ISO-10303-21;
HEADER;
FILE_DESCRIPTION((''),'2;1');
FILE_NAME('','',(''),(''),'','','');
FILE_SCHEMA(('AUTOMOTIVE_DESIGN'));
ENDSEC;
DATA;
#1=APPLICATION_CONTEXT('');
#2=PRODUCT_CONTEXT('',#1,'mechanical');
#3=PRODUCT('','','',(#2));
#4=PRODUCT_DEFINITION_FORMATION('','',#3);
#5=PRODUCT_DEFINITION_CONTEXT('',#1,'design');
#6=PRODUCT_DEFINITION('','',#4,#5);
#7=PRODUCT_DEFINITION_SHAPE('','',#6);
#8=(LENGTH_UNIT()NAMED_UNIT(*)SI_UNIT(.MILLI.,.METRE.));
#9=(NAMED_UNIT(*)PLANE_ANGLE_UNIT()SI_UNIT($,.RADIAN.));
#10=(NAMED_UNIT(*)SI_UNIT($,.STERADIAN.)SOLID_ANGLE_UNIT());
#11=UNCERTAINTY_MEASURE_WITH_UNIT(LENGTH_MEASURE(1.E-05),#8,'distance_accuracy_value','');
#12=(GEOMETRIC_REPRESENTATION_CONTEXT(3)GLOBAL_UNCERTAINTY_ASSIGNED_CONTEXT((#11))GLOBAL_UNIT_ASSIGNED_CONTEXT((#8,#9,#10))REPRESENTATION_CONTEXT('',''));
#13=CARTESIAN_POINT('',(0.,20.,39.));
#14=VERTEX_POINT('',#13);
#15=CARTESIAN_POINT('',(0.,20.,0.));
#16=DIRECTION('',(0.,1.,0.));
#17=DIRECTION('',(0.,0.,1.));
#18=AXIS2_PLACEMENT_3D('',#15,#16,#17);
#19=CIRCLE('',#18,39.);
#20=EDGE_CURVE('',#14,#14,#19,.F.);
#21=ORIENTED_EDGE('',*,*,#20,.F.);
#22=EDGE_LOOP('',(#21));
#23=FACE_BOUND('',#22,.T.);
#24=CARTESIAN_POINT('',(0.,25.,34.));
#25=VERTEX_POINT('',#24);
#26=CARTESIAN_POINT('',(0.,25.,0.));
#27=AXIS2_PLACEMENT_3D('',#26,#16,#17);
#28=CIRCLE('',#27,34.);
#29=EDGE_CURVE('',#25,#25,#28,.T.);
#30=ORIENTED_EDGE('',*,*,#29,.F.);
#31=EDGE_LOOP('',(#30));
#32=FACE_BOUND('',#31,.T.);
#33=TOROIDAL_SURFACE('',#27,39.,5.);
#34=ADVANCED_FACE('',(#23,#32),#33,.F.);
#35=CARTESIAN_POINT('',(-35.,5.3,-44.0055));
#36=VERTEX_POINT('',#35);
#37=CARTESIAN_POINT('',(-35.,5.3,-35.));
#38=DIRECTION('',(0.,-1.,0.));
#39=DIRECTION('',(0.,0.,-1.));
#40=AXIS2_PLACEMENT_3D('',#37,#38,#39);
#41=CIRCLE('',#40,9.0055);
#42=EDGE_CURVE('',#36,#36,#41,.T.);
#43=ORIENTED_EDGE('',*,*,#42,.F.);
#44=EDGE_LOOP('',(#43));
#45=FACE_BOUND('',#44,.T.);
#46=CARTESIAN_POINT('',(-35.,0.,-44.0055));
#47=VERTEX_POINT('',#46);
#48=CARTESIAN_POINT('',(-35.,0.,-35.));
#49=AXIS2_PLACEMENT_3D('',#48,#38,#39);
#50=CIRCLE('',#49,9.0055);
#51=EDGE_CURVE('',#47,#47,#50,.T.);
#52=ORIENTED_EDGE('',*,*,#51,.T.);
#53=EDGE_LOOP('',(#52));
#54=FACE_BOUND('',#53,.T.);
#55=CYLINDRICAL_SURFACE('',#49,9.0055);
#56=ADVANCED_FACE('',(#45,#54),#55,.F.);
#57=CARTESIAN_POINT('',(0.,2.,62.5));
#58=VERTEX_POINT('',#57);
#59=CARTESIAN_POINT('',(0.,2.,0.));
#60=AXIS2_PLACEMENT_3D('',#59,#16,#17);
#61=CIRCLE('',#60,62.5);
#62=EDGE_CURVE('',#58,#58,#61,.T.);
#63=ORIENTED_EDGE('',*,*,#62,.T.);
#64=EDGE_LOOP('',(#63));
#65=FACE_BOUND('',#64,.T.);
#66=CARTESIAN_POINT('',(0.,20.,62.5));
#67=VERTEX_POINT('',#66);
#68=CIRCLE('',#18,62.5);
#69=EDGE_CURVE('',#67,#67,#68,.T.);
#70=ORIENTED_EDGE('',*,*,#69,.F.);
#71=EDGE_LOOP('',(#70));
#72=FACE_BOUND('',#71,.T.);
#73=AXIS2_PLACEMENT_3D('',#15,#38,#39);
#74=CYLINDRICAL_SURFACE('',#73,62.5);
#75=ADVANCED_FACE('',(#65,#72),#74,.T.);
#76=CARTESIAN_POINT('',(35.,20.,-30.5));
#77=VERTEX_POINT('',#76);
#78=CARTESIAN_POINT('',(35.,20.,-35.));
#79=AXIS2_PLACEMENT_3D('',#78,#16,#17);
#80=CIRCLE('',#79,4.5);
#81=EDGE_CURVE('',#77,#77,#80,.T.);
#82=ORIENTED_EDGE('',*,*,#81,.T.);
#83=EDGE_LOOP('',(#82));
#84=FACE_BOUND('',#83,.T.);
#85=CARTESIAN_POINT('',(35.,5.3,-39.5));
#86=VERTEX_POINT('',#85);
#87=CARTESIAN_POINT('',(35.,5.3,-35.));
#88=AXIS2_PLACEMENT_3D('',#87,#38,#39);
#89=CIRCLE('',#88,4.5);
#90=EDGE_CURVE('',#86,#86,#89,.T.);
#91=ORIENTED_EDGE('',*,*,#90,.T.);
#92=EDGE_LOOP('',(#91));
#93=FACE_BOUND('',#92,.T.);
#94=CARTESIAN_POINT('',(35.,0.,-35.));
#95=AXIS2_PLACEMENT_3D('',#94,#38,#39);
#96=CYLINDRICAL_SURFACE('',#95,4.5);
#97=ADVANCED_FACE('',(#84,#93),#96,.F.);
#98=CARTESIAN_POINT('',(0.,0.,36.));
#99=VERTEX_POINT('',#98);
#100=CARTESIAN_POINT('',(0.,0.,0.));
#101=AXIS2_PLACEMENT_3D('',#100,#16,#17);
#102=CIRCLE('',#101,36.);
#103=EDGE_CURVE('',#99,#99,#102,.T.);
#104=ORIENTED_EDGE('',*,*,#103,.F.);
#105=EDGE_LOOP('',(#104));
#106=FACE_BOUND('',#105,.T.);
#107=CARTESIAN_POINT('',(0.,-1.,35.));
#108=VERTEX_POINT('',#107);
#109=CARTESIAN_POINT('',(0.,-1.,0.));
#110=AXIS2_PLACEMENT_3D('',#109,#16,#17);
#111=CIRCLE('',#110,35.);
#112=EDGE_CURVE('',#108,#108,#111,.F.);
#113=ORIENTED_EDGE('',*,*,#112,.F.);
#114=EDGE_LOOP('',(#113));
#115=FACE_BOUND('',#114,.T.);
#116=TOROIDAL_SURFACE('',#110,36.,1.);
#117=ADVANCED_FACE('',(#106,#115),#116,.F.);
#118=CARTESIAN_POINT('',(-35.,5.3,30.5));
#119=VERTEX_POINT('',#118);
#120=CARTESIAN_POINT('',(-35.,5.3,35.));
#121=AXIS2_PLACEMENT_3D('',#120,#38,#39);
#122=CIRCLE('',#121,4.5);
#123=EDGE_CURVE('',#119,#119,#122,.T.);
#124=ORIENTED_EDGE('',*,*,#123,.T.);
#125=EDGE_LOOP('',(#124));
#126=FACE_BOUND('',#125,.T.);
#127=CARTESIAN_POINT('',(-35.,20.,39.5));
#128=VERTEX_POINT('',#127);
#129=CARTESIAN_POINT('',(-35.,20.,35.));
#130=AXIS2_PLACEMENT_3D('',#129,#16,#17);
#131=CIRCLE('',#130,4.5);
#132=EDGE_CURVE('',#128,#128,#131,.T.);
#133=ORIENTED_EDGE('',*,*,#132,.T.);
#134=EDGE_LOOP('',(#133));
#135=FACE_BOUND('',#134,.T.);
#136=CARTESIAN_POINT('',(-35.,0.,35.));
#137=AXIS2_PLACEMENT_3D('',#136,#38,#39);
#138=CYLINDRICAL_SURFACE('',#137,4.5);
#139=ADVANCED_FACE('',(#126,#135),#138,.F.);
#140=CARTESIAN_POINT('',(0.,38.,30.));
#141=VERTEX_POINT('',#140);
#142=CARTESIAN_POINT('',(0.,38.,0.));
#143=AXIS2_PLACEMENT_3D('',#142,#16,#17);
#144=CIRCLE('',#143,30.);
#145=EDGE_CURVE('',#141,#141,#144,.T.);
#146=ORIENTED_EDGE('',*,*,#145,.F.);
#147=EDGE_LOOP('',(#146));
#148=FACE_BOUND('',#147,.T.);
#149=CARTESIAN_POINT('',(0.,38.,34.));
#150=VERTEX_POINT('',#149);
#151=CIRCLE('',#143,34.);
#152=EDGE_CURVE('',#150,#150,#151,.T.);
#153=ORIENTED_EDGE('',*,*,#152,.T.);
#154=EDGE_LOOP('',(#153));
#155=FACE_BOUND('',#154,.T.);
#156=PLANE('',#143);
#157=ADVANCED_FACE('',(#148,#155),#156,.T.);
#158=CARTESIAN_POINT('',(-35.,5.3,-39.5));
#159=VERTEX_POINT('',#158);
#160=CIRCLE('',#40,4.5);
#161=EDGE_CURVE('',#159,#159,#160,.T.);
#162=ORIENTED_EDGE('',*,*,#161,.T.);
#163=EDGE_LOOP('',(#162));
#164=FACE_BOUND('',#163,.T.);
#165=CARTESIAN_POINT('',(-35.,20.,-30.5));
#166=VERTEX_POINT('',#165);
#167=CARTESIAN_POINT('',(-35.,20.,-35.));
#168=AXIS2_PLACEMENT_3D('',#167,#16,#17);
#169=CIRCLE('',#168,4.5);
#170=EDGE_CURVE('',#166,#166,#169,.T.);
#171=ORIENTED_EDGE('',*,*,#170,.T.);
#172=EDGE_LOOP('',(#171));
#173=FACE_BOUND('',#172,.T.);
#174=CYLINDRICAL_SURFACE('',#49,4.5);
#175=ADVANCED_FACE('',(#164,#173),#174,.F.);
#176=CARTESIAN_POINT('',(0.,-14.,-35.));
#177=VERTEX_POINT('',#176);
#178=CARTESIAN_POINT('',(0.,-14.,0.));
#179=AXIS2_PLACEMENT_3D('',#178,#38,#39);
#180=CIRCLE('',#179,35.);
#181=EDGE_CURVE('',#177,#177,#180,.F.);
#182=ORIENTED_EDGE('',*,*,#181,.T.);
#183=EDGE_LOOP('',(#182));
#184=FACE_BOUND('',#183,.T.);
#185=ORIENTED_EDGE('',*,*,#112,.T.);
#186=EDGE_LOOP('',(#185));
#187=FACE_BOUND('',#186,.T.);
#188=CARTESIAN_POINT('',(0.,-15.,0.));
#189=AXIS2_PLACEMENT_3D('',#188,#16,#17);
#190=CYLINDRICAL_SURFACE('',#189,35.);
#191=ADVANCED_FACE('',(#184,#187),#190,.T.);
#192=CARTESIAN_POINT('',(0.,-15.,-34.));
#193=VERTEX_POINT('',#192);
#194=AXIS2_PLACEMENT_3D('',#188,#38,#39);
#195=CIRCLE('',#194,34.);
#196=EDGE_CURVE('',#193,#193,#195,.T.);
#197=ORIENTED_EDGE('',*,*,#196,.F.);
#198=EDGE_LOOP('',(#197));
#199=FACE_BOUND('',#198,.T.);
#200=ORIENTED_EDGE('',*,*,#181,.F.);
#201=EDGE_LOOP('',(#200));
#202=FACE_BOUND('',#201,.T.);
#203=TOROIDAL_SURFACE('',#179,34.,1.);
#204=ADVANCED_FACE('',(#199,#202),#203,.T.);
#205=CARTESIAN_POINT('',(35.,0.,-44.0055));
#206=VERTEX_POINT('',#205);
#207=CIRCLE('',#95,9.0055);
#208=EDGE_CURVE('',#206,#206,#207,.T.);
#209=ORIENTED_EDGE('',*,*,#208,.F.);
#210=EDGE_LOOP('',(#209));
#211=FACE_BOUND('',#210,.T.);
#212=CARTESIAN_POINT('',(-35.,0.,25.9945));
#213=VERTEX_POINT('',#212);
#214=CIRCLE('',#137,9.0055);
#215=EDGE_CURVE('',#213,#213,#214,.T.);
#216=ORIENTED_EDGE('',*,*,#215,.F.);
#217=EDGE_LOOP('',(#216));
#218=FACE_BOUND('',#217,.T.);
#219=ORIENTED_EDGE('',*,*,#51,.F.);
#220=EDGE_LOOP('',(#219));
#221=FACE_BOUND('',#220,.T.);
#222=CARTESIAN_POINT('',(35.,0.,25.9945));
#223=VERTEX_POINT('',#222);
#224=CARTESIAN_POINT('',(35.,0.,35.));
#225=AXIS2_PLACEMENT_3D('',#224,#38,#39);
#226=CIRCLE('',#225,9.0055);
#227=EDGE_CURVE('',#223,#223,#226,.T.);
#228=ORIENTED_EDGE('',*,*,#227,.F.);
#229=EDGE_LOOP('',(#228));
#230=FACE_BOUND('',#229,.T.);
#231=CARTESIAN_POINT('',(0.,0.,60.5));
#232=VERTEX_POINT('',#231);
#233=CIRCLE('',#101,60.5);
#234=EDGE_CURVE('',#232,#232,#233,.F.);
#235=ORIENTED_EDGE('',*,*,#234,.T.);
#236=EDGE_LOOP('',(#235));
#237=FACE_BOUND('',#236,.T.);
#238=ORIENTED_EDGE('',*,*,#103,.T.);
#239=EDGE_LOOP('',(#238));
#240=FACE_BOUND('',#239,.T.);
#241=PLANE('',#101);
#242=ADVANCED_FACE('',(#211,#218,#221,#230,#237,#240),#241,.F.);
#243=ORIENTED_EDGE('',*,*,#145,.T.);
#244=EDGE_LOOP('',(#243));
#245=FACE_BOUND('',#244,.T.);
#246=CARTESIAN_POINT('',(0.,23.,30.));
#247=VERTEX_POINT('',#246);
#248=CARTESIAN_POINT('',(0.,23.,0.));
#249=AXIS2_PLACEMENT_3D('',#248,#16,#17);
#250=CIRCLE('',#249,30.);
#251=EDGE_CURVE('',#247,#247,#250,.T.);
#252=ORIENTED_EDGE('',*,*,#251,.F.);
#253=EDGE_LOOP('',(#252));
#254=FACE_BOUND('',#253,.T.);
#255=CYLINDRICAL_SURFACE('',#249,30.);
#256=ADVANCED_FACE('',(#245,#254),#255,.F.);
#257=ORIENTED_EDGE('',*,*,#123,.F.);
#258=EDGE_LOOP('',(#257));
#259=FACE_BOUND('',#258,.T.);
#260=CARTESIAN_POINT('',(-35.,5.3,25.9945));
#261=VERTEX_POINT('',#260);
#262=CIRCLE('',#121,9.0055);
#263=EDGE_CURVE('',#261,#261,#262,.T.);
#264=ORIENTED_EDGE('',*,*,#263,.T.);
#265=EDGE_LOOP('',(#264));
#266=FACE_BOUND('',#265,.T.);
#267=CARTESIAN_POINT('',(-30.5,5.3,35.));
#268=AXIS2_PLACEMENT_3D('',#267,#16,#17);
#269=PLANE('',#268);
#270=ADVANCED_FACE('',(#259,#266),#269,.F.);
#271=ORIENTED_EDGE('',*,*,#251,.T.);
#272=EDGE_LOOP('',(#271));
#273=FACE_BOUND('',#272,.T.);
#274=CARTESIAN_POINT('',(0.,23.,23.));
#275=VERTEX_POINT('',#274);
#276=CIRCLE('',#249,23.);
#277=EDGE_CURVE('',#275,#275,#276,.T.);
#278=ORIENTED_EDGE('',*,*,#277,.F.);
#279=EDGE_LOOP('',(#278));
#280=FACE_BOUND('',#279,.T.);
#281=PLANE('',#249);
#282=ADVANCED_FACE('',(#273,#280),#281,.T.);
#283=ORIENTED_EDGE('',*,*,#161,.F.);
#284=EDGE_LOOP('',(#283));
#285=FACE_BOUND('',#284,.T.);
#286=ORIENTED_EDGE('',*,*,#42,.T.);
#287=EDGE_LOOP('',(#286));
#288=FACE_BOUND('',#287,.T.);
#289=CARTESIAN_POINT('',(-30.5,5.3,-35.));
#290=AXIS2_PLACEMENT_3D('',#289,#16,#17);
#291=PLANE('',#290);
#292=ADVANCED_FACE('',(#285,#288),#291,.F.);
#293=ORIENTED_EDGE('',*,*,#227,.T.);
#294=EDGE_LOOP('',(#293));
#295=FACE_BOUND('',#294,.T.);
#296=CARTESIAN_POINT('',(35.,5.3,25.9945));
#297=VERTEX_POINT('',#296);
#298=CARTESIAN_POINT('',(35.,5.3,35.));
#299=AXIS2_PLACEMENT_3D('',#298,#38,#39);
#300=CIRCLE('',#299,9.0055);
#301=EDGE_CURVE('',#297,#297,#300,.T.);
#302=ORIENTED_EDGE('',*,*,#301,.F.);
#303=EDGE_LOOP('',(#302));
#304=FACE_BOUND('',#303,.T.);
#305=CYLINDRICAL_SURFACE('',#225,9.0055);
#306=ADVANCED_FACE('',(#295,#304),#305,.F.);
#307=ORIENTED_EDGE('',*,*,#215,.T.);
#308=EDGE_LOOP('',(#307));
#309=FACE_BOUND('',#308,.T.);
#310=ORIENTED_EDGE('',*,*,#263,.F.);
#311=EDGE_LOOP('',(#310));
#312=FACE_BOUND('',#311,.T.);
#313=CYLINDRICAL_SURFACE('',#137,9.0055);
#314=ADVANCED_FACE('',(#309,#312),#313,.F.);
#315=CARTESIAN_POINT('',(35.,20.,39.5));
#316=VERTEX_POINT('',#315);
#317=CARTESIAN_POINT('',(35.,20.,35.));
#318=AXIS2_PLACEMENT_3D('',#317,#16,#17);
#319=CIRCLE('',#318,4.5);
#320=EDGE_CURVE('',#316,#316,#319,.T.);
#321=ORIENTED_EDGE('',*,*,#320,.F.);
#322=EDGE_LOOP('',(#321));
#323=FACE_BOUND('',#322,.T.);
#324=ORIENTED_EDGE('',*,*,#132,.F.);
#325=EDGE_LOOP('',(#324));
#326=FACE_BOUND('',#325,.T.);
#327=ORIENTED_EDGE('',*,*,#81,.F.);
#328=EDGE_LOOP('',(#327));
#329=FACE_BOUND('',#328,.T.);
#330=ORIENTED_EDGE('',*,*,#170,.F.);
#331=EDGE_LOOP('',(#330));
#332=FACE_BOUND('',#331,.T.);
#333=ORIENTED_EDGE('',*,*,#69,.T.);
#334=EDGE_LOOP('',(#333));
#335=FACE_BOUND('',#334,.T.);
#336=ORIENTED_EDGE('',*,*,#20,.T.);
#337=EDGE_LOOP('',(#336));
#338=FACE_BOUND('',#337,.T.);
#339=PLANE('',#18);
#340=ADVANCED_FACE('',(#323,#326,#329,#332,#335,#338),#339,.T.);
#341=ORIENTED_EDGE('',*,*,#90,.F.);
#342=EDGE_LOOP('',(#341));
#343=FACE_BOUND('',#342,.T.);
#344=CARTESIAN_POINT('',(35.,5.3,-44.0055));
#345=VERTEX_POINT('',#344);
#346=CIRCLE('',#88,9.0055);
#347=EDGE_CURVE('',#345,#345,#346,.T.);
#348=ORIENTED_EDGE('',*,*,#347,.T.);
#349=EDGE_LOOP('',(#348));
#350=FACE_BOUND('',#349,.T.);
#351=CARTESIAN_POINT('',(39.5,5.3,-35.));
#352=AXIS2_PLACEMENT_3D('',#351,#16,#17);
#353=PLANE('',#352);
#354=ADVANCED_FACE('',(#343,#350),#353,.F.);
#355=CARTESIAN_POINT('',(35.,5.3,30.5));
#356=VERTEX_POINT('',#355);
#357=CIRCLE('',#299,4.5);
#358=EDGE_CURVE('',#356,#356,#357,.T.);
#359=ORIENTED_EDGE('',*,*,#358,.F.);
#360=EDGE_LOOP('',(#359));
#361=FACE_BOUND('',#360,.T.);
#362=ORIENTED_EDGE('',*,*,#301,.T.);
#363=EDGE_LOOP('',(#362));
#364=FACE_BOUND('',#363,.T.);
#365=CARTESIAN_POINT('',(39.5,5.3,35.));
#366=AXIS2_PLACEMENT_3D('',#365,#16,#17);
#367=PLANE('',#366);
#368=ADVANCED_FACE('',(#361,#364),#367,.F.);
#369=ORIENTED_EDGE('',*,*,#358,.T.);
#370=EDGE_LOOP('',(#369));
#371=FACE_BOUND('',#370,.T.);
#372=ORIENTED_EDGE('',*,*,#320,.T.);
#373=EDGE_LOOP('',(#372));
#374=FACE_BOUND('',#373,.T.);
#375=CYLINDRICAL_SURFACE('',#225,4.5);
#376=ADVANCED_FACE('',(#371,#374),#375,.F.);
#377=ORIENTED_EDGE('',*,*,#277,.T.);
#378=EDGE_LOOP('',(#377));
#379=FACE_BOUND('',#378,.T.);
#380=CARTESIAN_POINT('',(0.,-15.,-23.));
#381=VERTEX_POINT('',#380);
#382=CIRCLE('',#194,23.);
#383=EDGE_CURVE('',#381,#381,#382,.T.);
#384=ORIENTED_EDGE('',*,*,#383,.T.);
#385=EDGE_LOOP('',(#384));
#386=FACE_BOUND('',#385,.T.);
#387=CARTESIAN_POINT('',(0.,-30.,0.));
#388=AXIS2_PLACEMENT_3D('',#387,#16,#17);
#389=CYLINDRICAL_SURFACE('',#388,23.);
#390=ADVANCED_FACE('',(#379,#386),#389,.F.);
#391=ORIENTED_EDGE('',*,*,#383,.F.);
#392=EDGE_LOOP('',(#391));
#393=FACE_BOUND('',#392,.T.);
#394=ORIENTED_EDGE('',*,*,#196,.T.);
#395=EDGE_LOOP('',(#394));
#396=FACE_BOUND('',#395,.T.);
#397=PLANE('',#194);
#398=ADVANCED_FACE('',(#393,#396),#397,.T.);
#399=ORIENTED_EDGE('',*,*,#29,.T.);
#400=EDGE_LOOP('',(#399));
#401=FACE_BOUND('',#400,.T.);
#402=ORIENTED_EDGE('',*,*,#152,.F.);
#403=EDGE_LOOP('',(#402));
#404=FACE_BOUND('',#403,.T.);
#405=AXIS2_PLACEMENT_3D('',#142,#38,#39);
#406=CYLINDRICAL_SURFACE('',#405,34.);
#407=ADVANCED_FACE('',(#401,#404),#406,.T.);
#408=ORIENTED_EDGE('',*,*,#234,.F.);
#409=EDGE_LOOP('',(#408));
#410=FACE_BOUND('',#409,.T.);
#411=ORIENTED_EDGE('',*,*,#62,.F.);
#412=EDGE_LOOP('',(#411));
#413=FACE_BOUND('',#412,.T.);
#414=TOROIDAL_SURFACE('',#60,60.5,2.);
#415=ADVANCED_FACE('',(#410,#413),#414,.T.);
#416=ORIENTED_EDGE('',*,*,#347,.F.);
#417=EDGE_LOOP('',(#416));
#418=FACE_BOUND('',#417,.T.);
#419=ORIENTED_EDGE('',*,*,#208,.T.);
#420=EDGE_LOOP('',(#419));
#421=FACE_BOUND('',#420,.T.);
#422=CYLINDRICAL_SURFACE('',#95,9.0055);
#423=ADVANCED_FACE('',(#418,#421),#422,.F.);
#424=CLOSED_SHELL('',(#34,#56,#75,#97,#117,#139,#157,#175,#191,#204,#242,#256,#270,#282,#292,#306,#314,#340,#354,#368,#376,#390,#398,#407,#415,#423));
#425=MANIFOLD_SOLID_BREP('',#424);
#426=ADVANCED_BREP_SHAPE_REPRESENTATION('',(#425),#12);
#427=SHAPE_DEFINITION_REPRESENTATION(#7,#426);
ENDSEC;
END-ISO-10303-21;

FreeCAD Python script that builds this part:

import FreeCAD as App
import Part
import Sketcher


def edges_at(feature, points):
    """Names of the edges that pass closest to the given points."""
    edges = feature.Shape.Edges
    near = lambda p: min(range(len(edges)), key=lambda i: edges[i].distToShape(Part.Vertex(*p))[0])
    return sorted({f"Edge{near(p) + 1}" for p in points})

doc = App.newDocument("Part")
body = doc.addObject("PartDesign::Body", "Body")

sketch1 = body.newObject("Sketcher::SketchObject", "Sketch")
sketch1.AttachmentSupport = (doc.getObject("XZ_Plane"), [""])
sketch1.MapMode = "FlatFace"
sketch1.addGeometry(Part.Circle(App.Vector(0, 0, 0), App.Vector(0, 0, 1), 62), False)
sketch1.addConstraint([
    Sketcher.Constraint("Coincident", 0, 3, -1, 1),
    Sketcher.Constraint("Diameter", 0, 125.0),
])
pad1 = body.newObject("PartDesign::Pad", "Pad")
pad1.Profile = sketch1
pad1.Length = 20
pad1.Reversed = True

sketch2 = body.newObject("Sketcher::SketchObject", "Sketch001")
sketch2.AttachmentSupport = (doc.getObject("XZ_Plane"), [""])
sketch2.MapMode = "FlatFace"
sketch2.AttachmentOffset = App.Placement(App.Vector(0, 0, -20), App.Rotation())
sketch2.addGeometry(Part.Circle(App.Vector(0, 0, 0), App.Vector(0, 0, 1), 34), False)
sketch2.addConstraint([
    Sketcher.Constraint("Coincident", 0, 3, -1, 1),
    Sketcher.Constraint("Diameter", 0, 68.0),
])
pad2 = body.newObject("PartDesign::Pad", "Pad001")
pad2.Profile = sketch2
pad2.Length = 18
pad2.Reversed = True

sketch3 = body.newObject("Sketcher::SketchObject", "Sketch002")
sketch3.AttachmentSupport = (doc.getObject("XZ_Plane"), [""])
sketch3.MapMode = "FlatFace"
sketch3.AttachmentOffset = App.Placement(App.Vector(0, 0, -38), App.Rotation())
sketch3.addGeometry(Part.Circle(App.Vector(0, 0, 0), App.Vector(0, 0, 1), 30), False)
sketch3.addConstraint([
    Sketcher.Constraint("Coincident", 0, 3, -1, 1),
    Sketcher.Constraint("Diameter", 0, 60.0),
])
pocket1 = body.newObject("PartDesign::Pocket", "Pocket")
pocket1.Profile = sketch3
pocket1.Length = 15
pocket1.Reversed = True
doc.recompute()

fillet = body.newObject("PartDesign::Fillet", "Fillet")
fillet.Base = (pocket1, edges_at(pocket1, [(0, 20, -34)]))
fillet.Radius = 5

sketch4 = body.newObject("Sketcher::SketchObject", "Sketch003")
sketch4.AttachmentSupport = (doc.getObject("XZ_Plane"), [""])
sketch4.MapMode = "FlatFace"
sketch4.addGeometry([
    Part.Circle(App.Vector(-35, 35, 0), App.Vector(0, 0, 1), 4.5),
    Part.Circle(App.Vector(35, 35, 0), App.Vector(0, 0, 1), 4.5),
    Part.Circle(App.Vector(35, -35, 0), App.Vector(0, 0, 1), 4.5),
    Part.Circle(App.Vector(-35, -35, 0), App.Vector(0, 0, 1), 4.5),
], False)
sketch4.addConstraint([
    Sketcher.Constraint("Equal", 0, 1),
    Sketcher.Constraint("Equal", 1, 2),
    Sketcher.Constraint("Equal", 2, 3),
    Sketcher.Constraint("Symmetric", 0, 3, 2, 3, -1, 1),
    Sketcher.Constraint("Symmetric", 1, 3, 3, 3, -1, 1),
    Sketcher.Constraint("Symmetric", 0, 3, 1, 3, -2),
    Sketcher.Constraint("Diameter", 0, 9.0),
    Sketcher.Constraint("DistanceX", 0, 3, -1, 1, 35.0),
    Sketcher.Constraint("DistanceY", -1, 1, 0, 3, 35.0),
])
doc.recompute()
hole = body.newObject("PartDesign::Hole", "Hole")
hole.Profile = sketch4
hole.ThreadType = "None"
hole.Diameter = 9
hole.DepthType = "ThroughAll"
hole.HoleCutType = "Counterbore"
hole.HoleCutDiameter = 18.011
hole.HoleCutDepth = 5.3
doc.recompute()

fillet2 = body.newObject("PartDesign::Fillet", "Fillet001")
fillet2.Base = (hole, edges_at(hole, [(0, 0, -62.5)]))
fillet2.Radius = 2

sketch5 = body.newObject("Sketcher::SketchObject", "Sketch004")
sketch5.AttachmentSupport = (doc.getObject("XZ_Plane"), [""])
sketch5.MapMode = "FlatFace"
sketch5.AttachmentOffset = App.Placement(App.Vector(0, 0, -23), App.Rotation())
sketch5.addGeometry(Part.Circle(App.Vector(0, 0, 0), App.Vector(0, 0, 1), 23), False)
sketch5.addConstraint([
    Sketcher.Constraint("Coincident", 0, 3, -1, 1),
    Sketcher.Constraint("Diameter", 0, 46.0),
])
pocket2 = body.newObject("PartDesign::Pocket", "Pocket001")
pocket2.Profile = sketch5
pocket2.Length = 53
pocket2.Reversed = True

sketch6 = body.newObject("Sketcher::SketchObject", "Sketch005")
sketch6.AttachmentSupport = (doc.getObject("XZ_Plane"), [""])
sketch6.MapMode = "FlatFace"
sketch6.addGeometry([
    Part.Circle(App.Vector(0, 0, 0), App.Vector(0, 0, 1), 35),
    Part.Circle(App.Vector(0, 0, 0), App.Vector(0, 0, 1), 23),
], False)
sketch6.addConstraint([
    Sketcher.Constraint("Coincident", 0, 3, -1, 1),
    Sketcher.Constraint("Coincident", 1, 3, -1, 1),
    Sketcher.Constraint("Diameter", 0, 70.0),
    Sketcher.Constraint("Diameter", 1, 46.0),
])
pad3 = body.newObject("PartDesign::Pad", "Pad002")
pad3.Profile = sketch6
pad3.Length = 15
doc.recompute()

fillet3 = body.newObject("PartDesign::Fillet", "Fillet002")
fillet3.Base = (pad3, edges_at(pad3, [(0, 0, -35), (0, -15, -35)]))
fillet3.Radius = 1

doc.recompute()
